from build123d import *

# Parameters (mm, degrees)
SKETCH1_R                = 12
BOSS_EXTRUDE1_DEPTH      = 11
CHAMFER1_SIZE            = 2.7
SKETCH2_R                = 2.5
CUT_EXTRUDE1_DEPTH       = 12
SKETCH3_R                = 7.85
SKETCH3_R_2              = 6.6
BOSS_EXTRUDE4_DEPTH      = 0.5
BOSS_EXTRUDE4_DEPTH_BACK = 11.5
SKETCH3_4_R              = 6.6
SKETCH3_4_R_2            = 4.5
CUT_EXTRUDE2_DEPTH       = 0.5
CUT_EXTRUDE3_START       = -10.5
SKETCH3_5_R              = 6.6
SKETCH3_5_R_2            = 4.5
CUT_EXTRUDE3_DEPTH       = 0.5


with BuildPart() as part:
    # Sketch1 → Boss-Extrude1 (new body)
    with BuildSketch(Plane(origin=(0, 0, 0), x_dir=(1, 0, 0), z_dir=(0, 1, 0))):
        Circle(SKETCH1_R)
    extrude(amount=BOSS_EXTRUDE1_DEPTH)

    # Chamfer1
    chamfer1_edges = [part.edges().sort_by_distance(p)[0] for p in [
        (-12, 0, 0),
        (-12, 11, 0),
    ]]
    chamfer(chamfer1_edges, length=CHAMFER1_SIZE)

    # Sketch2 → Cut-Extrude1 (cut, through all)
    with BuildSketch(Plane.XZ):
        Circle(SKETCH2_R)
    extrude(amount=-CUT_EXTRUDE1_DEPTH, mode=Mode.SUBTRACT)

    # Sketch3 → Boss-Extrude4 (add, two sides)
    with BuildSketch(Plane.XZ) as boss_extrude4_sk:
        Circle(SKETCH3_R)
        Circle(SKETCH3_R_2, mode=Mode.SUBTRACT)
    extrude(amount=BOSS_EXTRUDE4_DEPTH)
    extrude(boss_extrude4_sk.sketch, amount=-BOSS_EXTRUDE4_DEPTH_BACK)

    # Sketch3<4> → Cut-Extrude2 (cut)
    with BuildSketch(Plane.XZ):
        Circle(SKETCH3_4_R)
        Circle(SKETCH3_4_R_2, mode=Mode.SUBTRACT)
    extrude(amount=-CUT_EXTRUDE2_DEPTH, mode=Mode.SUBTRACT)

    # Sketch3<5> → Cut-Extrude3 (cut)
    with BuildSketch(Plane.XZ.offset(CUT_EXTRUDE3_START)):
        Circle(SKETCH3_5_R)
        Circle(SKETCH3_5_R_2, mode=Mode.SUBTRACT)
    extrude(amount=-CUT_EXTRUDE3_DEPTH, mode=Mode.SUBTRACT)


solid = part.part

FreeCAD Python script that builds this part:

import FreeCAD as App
import Part
import Sketcher
Q = App.Units.Quantity


def edges_at(feature, points):
    """Names of the edges that pass closest to the given points."""
    edges = feature.Shape.Edges
    near = lambda p: min(range(len(edges)), key=lambda i: edges[i].distToShape(Part.Vertex(*p))[0])
    return sorted({f"Edge{near(p) + 1}" for p in points})

doc = App.newDocument("Part")
body = doc.addObject("PartDesign::Body", "Body")

# Sketch on XZ plane
sketch1 = body.newObject("Sketcher::SketchObject", "Sketch")
sketch1.AttachmentSupport = (doc.getObject("XZ_Plane"), [""])
sketch1.MapMode = "FlatFace"
sketch1.addGeometry(Part.Circle(App.Vector(0, 0, 0), App.Vector(0, 0, 1), 12), False)
sketch1.addConstraint([
    Sketcher.Constraint("Coincident", 0, 3, -1, 1),
    Sketcher.Constraint("Diameter", 0, Q("24 mm")),
])
pad1 = body.newObject("PartDesign::Pad", "Pad")
pad1.Profile = sketch1
pad1.Length = 11
pad1.Reversed = True
doc.recompute()

chamfer = body.newObject("PartDesign::Chamfer", "Chamfer")
chamfer.Base = (pad1, edges_at(pad1, [(-12, 0, 0), (-12, 11, 0)]))
chamfer.Size = 2.7

# Sketch on XZ plane
sketch2 = body.newObject("Sketcher::SketchObject", "Sketch001")
sketch2.AttachmentSupport = (doc.getObject("XZ_Plane"), [""])
sketch2.MapMode = "FlatFace"
sketch2.addGeometry(Part.Circle(App.Vector(0, 0, 0), App.Vector(0, 0, 1), 2.5), False)
sketch2.addConstraint([
    Sketcher.Constraint("Coincident", 0, 3, -1, 1),
    Sketcher.Constraint("Diameter", 0, Q("5 mm")),
])
pocket1 = body.newObject("PartDesign::Pocket", "Pocket")
pocket1.Profile = sketch2
pocket1.Type = "ThroughAll"

# Sketch on XZ plane
sketch3 = body.newObject("Sketcher::SketchObject", "Sketch002")
sketch3.AttachmentSupport = (doc.getObject("XZ_Plane"), [""])
sketch3.MapMode = "FlatFace"
sketch3.addGeometry([
    Part.Circle(App.Vector(0, 0, 0), App.Vector(0, 0, 1), 7.85),
    Part.Circle(App.Vector(0, 0, 0), App.Vector(0, 0, 1), 6.6),
], False)
sketch3.addConstraint([
    Sketcher.Constraint("Coincident", 0, 3, -1, 1),
    Sketcher.Constraint("Coincident", 1, 3, -1, 1),
    Sketcher.Constraint("Diameter", 0, Q("15.7 mm")),
    Sketcher.Constraint("Diameter", 1, Q("13.2 mm")),
])
pad2 = body.newObject("PartDesign::Pad", "Pad001")
pad2.Profile = sketch3
pad2.Type = "TwoLengths"
pad2.Length = 0.5
pad2.Length2 = 11.5

# Sketch on XZ plane
sketch4 = body.newObject("Sketcher::SketchObject", "Sketch003")
sketch4.AttachmentSupport = (doc.getObject("XZ_Plane"), [""])
sketch4.MapMode = "FlatFace"
sketch4.addGeometry([
    Part.Circle(App.Vector(0, 0, 0), App.Vector(0, 0, 1), 6.6),
    Part.Circle(App.Vector(0, 0, 0), App.Vector(0, 0, 1), 4.5),
], False)
sketch4.addConstraint([
    Sketcher.Constraint("Coincident", 0, 3, -1, 1),
    Sketcher.Constraint("Coincident", 1, 3, -1, 1),
    Sketcher.Constraint("Diameter", 1, Q("9 mm")),
    Sketcher.Constraint("Diameter", 0, Q("13.2 mm")),
])
pocket2 = body.newObject("PartDesign::Pocket", "Pocket001")
pocket2.Profile = sketch4
pocket2.Length = 0.5

# Sketch on XZ plane
sketch5 = body.newObject("Sketcher::SketchObject", "Sketch004")
sketch5.AttachmentSupport = (doc.getObject("XZ_Plane"), [""])
sketch5.MapMode = "FlatFace"
sketch5.AttachmentOffset = App.Placement(App.Vector(0, 0, -10.5), App.Rotation())
sketch5.addGeometry([
    Part.Circle(App.Vector(0, 0, 0), App.Vector(0, 0, 1), 6.6),
    Part.Circle(App.Vector(0, 0, 0), App.Vector(0, 0, 1), 4.5),
], False)
sketch5.addConstraint([
    Sketcher.Constraint("Coincident", 0, 3, -1, 1),
    Sketcher.Constraint("Coincident", 1, 3, -1, 1),
    Sketcher.Constraint("Diameter", 1, Q("9 mm")),
    Sketcher.Constraint("Diameter", 0, Q("13.2 mm")),
])
pocket3 = body.newObject("PartDesign::Pocket", "Pocket002")
pocket3.Profile = sketch5
pocket3.Length = 0.5

doc.recompute()
